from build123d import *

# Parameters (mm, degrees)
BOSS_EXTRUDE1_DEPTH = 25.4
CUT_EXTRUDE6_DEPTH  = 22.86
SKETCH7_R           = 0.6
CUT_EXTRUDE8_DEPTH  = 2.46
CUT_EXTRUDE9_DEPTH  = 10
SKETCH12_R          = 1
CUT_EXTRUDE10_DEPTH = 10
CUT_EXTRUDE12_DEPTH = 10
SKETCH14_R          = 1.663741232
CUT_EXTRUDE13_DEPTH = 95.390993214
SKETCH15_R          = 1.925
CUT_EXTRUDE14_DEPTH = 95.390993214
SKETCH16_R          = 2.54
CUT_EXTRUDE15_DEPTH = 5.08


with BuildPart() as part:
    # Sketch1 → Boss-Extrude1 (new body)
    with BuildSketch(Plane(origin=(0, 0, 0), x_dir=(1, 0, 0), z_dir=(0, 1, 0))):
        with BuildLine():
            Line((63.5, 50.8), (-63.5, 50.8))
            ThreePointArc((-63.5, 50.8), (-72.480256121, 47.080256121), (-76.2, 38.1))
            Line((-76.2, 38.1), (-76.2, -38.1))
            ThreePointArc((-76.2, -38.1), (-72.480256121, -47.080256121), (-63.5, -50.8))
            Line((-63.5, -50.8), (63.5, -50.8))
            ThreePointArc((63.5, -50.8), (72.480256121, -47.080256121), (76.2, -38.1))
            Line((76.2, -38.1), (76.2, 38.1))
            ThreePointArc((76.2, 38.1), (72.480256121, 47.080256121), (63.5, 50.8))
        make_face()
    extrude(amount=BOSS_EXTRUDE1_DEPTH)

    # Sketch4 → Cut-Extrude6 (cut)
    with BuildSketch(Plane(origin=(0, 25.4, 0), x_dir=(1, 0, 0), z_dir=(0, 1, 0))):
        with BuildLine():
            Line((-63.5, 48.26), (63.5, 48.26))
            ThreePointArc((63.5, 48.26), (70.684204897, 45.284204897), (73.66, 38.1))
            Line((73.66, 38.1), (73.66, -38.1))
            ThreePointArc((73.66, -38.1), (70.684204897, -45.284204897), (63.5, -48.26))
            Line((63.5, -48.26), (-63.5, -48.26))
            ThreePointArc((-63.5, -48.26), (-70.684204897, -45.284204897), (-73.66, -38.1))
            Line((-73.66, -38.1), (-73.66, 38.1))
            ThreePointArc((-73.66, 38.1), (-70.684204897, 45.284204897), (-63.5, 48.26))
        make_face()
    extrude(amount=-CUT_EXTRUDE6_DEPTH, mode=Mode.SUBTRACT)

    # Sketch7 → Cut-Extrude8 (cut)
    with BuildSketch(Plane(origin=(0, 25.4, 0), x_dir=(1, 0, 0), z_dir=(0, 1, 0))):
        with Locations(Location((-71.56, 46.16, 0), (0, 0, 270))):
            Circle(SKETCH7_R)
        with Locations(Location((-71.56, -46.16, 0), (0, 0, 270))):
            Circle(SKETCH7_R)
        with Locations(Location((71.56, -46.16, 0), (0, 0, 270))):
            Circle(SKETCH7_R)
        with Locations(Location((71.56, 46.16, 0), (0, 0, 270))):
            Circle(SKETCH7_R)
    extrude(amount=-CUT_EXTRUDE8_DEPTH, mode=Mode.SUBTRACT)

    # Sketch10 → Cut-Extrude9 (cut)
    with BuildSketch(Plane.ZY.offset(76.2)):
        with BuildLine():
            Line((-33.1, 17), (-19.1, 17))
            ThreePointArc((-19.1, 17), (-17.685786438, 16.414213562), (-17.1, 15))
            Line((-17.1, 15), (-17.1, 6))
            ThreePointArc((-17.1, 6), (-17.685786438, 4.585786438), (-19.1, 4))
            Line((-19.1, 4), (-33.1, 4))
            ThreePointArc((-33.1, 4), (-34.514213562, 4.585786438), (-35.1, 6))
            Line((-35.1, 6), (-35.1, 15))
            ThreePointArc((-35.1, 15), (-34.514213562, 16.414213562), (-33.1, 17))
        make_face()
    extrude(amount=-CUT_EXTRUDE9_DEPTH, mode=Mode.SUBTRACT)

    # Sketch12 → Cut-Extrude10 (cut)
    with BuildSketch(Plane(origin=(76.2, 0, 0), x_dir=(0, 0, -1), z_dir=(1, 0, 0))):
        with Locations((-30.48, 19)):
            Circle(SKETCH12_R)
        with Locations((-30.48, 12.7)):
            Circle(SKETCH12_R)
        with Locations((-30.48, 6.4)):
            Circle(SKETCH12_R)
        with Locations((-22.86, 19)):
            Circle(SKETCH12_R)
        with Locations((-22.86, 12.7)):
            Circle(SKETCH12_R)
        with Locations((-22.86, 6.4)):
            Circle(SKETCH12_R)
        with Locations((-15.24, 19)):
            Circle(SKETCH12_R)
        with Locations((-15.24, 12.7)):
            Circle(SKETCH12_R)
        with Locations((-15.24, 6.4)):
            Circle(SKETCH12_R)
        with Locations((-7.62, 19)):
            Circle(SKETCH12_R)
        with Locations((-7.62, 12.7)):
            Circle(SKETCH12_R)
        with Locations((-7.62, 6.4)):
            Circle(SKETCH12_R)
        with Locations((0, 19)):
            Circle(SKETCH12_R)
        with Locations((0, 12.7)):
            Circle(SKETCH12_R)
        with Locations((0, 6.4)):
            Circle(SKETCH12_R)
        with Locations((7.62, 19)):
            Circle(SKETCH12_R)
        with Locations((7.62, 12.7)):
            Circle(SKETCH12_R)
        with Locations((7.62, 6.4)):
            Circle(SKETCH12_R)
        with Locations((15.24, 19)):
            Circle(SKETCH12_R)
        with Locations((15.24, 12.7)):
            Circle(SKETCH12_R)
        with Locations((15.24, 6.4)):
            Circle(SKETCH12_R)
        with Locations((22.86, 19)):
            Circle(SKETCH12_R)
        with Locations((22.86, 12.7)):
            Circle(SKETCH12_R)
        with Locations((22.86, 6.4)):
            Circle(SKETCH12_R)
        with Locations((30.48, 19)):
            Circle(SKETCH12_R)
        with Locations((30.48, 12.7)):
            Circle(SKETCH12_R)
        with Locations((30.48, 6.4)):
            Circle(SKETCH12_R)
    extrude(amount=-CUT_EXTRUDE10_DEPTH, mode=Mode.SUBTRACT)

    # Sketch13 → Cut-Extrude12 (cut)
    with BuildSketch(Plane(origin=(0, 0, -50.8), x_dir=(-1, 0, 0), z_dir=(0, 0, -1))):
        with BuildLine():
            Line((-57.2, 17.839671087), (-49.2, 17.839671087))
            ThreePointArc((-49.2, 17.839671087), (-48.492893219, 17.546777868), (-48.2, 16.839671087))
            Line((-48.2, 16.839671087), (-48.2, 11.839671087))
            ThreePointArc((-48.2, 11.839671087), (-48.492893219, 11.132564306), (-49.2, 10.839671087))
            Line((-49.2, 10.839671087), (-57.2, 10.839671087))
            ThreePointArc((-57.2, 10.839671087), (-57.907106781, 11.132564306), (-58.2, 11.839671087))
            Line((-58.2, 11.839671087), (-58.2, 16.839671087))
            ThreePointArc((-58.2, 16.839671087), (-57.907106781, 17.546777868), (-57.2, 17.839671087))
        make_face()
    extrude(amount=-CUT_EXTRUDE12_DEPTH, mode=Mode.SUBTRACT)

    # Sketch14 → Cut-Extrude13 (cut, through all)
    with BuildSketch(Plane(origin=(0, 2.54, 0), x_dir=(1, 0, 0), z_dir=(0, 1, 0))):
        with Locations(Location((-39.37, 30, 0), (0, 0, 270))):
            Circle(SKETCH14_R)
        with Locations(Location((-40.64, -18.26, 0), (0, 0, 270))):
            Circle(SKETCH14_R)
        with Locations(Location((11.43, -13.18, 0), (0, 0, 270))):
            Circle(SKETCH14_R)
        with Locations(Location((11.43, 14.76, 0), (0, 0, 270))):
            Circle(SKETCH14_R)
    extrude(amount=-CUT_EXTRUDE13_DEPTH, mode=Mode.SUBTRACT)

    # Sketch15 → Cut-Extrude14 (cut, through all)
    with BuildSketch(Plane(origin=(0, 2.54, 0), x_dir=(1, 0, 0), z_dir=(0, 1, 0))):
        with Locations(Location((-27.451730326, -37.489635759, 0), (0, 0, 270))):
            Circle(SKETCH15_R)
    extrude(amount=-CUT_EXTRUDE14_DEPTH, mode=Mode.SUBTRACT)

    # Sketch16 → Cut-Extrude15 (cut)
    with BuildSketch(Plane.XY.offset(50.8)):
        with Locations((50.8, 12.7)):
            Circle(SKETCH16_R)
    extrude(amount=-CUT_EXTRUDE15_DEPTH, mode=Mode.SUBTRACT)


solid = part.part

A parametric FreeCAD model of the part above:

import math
import FreeCAD as App
import Part
import Sketcher
Q = App.Units.Quantity

doc = App.newDocument("Part")
body = doc.addObject("PartDesign::Body", "Body")

# Sketch on XZ plane
sketch1 = body.newObject("Sketcher::SketchObject", "Sketch")
sketch1.AttachmentSupport = (doc.getObject("XZ_Plane"), [""])
sketch1.MapMode = "FlatFace"
sketch1.addGeometry([
    Part.LineSegment(App.Vector(63.5, -50.8, 0), App.Vector(-63.5, -50.8, 0)),  # 0
    Part.ArcOfCircle(Part.Circle(App.Vector(-63.5, -38.1, 0), App.Vector(0, 0, 1), 12.7), math.radians(180), math.radians(270)),  # 1
    Part.LineSegment(App.Vector(-76.2, -38.1, 0), App.Vector(-76.2, 38.1, 0)),  # 2
    Part.ArcOfCircle(Part.Circle(App.Vector(-63.5, 38.1, 0), App.Vector(0, 0, 1), 12.7), math.radians(90), math.radians(180)),  # 3
    Part.LineSegment(App.Vector(-63.5, 50.8, 0), App.Vector(63.5, 50.8, 0)),  # 4
    Part.ArcOfCircle(Part.Circle(App.Vector(63.5, 38.1, 0), App.Vector(0, 0, 1), 12.7), math.radians(0), math.radians(90)),  # 5
    Part.LineSegment(App.Vector(76.2, 38.1, 0), App.Vector(76.2, -38.1, 0)),  # 6
    Part.ArcOfCircle(Part.Circle(App.Vector(63.5, -38.1, 0), App.Vector(0, 0, 1), 12.7), math.radians(-90), math.radians(0)),  # 7
], False)
sketch1.addConstraint([
    Sketcher.Constraint("Tangent", 0, 2, 1, 2),
    Sketcher.Constraint("Tangent", 1, 1, 2, 1),
    Sketcher.Constraint("Tangent", 2, 2, 3, 2),
    Sketcher.Constraint("Tangent", 3, 1, 4, 1),
    Sketcher.Constraint("Tangent", 4, 2, 5, 2),
    Sketcher.Constraint("Tangent", 5, 1, 6, 1),
    Sketcher.Constraint("Tangent", 6, 2, 7, 2),
    Sketcher.Constraint("Tangent", 7, 1, 0, 1),
    Sketcher.Constraint("Horizontal", 0),
    Sketcher.Constraint("Vertical", 2),
    Sketcher.Constraint("Horizontal", 4),
    Sketcher.Constraint("Vertical", 6),
    Sketcher.Constraint("Equal", 1, 3),
    Sketcher.Constraint("Equal", 3, 5),
    Sketcher.Constraint("Equal", 5, 7),
    Sketcher.Constraint("Symmetric", 1, 3, 5, 3, -1, 1),
    Sketcher.Constraint("Radius", 1, Q("12.7 mm")),
    Sketcher.Constraint("DistanceX", 0, 2, 0, 1, Q("127 mm")),
    Sketcher.Constraint("DistanceY", 2, 1, 2, 2, Q("76.2 mm")),
])
pad1 = body.newObject("PartDesign::Pad", "Pad")
pad1.Profile = sketch1
pad1.Length = 25.4
pad1.Reversed = True

# Sketch on XZ plane
sketch2 = body.newObject("Sketcher::SketchObject", "Sketch001")
sketch2.AttachmentSupport = (doc.getObject("XZ_Plane"), [""])
sketch2.MapMode = "FlatFace"
sketch2.AttachmentOffset = App.Placement(App.Vector(0, 0, -25.4), App.Rotation())
sketch2.addGeometry([
    Part.LineSegment(App.Vector(63.5, -48.26, 0), App.Vector(-63.5, -48.26, 0)),  # 0
    Part.ArcOfCircle(Part.Circle(App.Vector(-63.5, -38.1, 0), App.Vector(0, 0, 1), 10.16), math.radians(180), math.radians(270)),  # 1
    Part.LineSegment(App.Vector(-73.66, -38.1, 0), App.Vector(-73.66, 38.1, 0)),  # 2
    Part.ArcOfCircle(Part.Circle(App.Vector(-63.5, 38.1, 0), App.Vector(0, 0, 1), 10.16), math.radians(90), math.radians(180)),  # 3
    Part.LineSegment(App.Vector(-63.5, 48.26, 0), App.Vector(63.5, 48.26, 0)),  # 4
    Part.ArcOfCircle(Part.Circle(App.Vector(63.5, 38.1, 0), App.Vector(0, 0, 1), 10.16), math.radians(0), math.radians(90)),  # 5
    Part.LineSegment(App.Vector(73.66, 38.1, 0), App.Vector(73.66, -38.1, 0)),  # 6
    Part.ArcOfCircle(Part.Circle(App.Vector(63.5, -38.1, 0), App.Vector(0, 0, 1), 10.16), math.radians(-90), math.radians(0)),  # 7
], False)
sketch2.addConstraint([
    Sketcher.Constraint("Tangent", 0, 2, 1, 2),
    Sketcher.Constraint("Tangent", 1, 1, 2, 1),
    Sketcher.Constraint("Tangent", 2, 2, 3, 2),
    Sketcher.Constraint("Tangent", 3, 1, 4, 1),
    Sketcher.Constraint("Tangent", 4, 2, 5, 2),
    Sketcher.Constraint("Tangent", 5, 1, 6, 1),
    Sketcher.Constraint("Tangent", 6, 2, 7, 2),
    Sketcher.Constraint("Tangent", 7, 1, 0, 1),
    Sketcher.Constraint("Horizontal", 0),
    Sketcher.Constraint("Vertical", 2),
    Sketcher.Constraint("Horizontal", 4),
    Sketcher.Constraint("Vertical", 6),
    Sketcher.Constraint("Equal", 1, 3),
    Sketcher.Constraint("Equal", 3, 5),
    Sketcher.Constraint("Equal", 5, 7),
    Sketcher.Constraint("Symmetric", 1, 3, 5, 3, -1, 1),
    Sketcher.Constraint("DistanceX", 0, 2, 0, 1, Q("127 mm")),
    Sketcher.Constraint("Radius", 1, Q("10.16 mm")),
    Sketcher.Constraint("DistanceY", 2, 1, 2, 2, Q("76.2 mm")),
])
pocket1 = body.newObject("PartDesign::Pocket", "Pocket")
pocket1.Profile = sketch2
pocket1.Length = 22.86
pocket1.Reversed = True

# Sketch on XZ plane
sketch3 = body.newObject("Sketcher::SketchObject", "Sketch002")
sketch3.AttachmentSupport = (doc.getObject("XZ_Plane"), [""])
sketch3.MapMode = "FlatFace"
sketch3.AttachmentOffset = App.Placement(App.Vector(0, 0, -25.4), App.Rotation())
sketch3.addGeometry([
    Part.Circle(App.Vector(-71.56, -46.16, 0), App.Vector(0, 0, 1), 0.6),
    Part.Circle(App.Vector(-71.56, 46.16, 0), App.Vector(0, 0, 1), 0.6),
    Part.Circle(App.Vector(71.56, 46.16, 0), App.Vector(0, 0, 1), 0.6),
    Part.Circle(App.Vector(71.56, -46.16, 0), App.Vector(0, 0, 1), 0.6),
], False)
sketch3.addConstraint([
    Sketcher.Constraint("Equal", 0, 1),
    Sketcher.Constraint("Equal", 1, 2),
    Sketcher.Constraint("Equal", 2, 3),
    Sketcher.Constraint("Symmetric", 0, 3, 2, 3, -1, 1),
    Sketcher.Constraint("Symmetric", 1, 3, 3, 3, -1, 1),
    Sketcher.Constraint("Symmetric", 1, 3, 2, 3, -2),
    Sketcher.Constraint("Diameter", 0, Q("1.2 mm")),
    Sketcher.Constraint("DistanceX", 0, 3, -1, 1, Q("71.56 mm")),
    Sketcher.Constraint("DistanceY", 0, 3, -1, 1, Q("46.16 mm")),
])
pocket2 = body.newObject("PartDesign::Pocket", "Pocket001")
pocket2.Profile = sketch3
pocket2.Length = 2.46
pocket2.Reversed = True

# Sketch on YZ plane
sketch4 = body.newObject("Sketcher::SketchObject", "Sketch003")
sketch4.AttachmentSupport = (doc.getObject("YZ_Plane"), [""])
sketch4.MapMode = "FlatFace"
sketch4.AttachmentOffset = App.Placement(App.Vector(0, 0, -76.2), App.Rotation())
sketch4.addGeometry([
    Part.LineSegment(App.Vector(17, -19.1, 0), App.Vector(17, -33.1, 0)),  # 0
    Part.ArcOfCircle(Part.Circle(App.Vector(15, -33.1, 0), App.Vector(0, 0, 1), 2), math.radians(-90), math.radians(0)),  # 1
    Part.LineSegment(App.Vector(15, -35.1, 0), App.Vector(6, -35.1, 0)),  # 2
    Part.ArcOfCircle(Part.Circle(App.Vector(6, -33.1, 0), App.Vector(0, 0, 1), 2), math.radians(-180), math.radians(-90)),  # 3
    Part.LineSegment(App.Vector(4, -33.1, 0), App.Vector(4, -19.1, 0)),  # 4
    Part.ArcOfCircle(Part.Circle(App.Vector(6, -19.1, 0), App.Vector(0, 0, 1), 2), math.radians(90), math.radians(180)),  # 5
    Part.LineSegment(App.Vector(6, -17.1, 0), App.Vector(15, -17.1, 0)),  # 6
    Part.ArcOfCircle(Part.Circle(App.Vector(15, -19.1, 0), App.Vector(0, 0, 1), 2), math.radians(0), math.radians(90)),  # 7
], False)
sketch4.addConstraint([
    Sketcher.Constraint("Tangent", 0, 2, 1, 2),
    Sketcher.Constraint("Tangent", 1, 1, 2, 1),
    Sketcher.Constraint("Tangent", 2, 2, 3, 2),
    Sketcher.Constraint("Tangent", 3, 1, 4, 1),
    Sketcher.Constraint("Tangent", 4, 2, 5, 2),
    Sketcher.Constraint("Tangent", 5, 1, 6, 1),
    Sketcher.Constraint("Tangent", 6, 2, 7, 2),
    Sketcher.Constraint("Tangent", 7, 1, 0, 1),
    Sketcher.Constraint("Vertical", 0),
    Sketcher.Constraint("Horizontal", 2),
    Sketcher.Constraint("Vertical", 4),
    Sketcher.Constraint("Horizontal", 6),
    Sketcher.Constraint("Equal", 1, 3),
    Sketcher.Constraint("Equal", 3, 5),
    Sketcher.Constraint("Equal", 5, 7),
    Sketcher.Constraint("Radius", 1, Q("2 mm")),
    Sketcher.Constraint("DistanceX", 2, 2, 2, 1, Q("9 mm")),
    Sketcher.Constraint("DistanceY", 0, 2, 0, 1, Q("14 mm")),
    Sketcher.Constraint("DistanceX", -1, 1, 1, 3, Q("15 mm")),
    Sketcher.Constraint("DistanceY", 1, 3, -1, 1, Q("33.1 mm")),
])
pocket3 = body.newObject("PartDesign::Pocket", "Pocket002")
pocket3.Profile = sketch4
pocket3.Length = 10
pocket3.Reversed = True

# Sketch on YZ plane
sketch5 = body.newObject("Sketcher::SketchObject", "Sketch004")
sketch5.AttachmentSupport = (doc.getObject("YZ_Plane"), [""])
sketch5.MapMode = "FlatFace"
sketch5.AttachmentOffset = App.Placement(App.Vector(0, 0, 76.2), App.Rotation())
sketch5.addGeometry([
    Part.Circle(App.Vector(19, 30.48, 0), App.Vector(0, 0, 1), 1),  # 0
    Part.Circle(App.Vector(12.7, 30.48, 0), App.Vector(0, 0, 1), 1),  # 1
    Part.Circle(App.Vector(6.4, 30.48, 0), App.Vector(0, 0, 1), 1),  # 2
    Part.Circle(App.Vector(19, 22.86, 0), App.Vector(0, 0, 1), 1),  # 3
    Part.Circle(App.Vector(12.7, 22.86, 0), App.Vector(0, 0, 1), 1),  # 4
    Part.Circle(App.Vector(6.4, 22.86, 0), App.Vector(0, 0, 1), 1),  # 5
    Part.Circle(App.Vector(19, 15.24, 0), App.Vector(0, 0, 1), 1),  # 6
    Part.Circle(App.Vector(12.7, 15.24, 0), App.Vector(0, 0, 1), 1),  # 7
    Part.Circle(App.Vector(6.4, 15.24, 0), App.Vector(0, 0, 1), 1),  # 8
    Part.Circle(App.Vector(19, 7.62, 0), App.Vector(0, 0, 1), 1),  # 9
    Part.Circle(App.Vector(12.7, 7.62, 0), App.Vector(0, 0, 1), 1),  # 10
    Part.Circle(App.Vector(6.4, 7.62, 0), App.Vector(0, 0, 1), 1),  # 11
    Part.Circle(App.Vector(19, 0, 0), App.Vector(0, 0, 1), 1),  # 12
    Part.Circle(App.Vector(12.7, 0, 0), App.Vector(0, 0, 1), 1),  # 13
    Part.Circle(App.Vector(6.4, 0, 0), App.Vector(0, 0, 1), 1),  # 14
    Part.Circle(App.Vector(19, -7.62, 0), App.Vector(0, 0, 1), 1),  # 15
    Part.Circle(App.Vector(12.7, -7.62, 0), App.Vector(0, 0, 1), 1),  # 16
    Part.Circle(App.Vector(6.4, -7.62, 0), App.Vector(0, 0, 1), 1),  # 17
    Part.Circle(App.Vector(19, -15.24, 0), App.Vector(0, 0, 1), 1),  # 18
    Part.Circle(App.Vector(12.7, -15.24, 0), App.Vector(0, 0, 1), 1),  # 19
    Part.Circle(App.Vector(6.4, -15.24, 0), App.Vector(0, 0, 1), 1),  # 20
    Part.Circle(App.Vector(19, -22.86, 0), App.Vector(0, 0, 1), 1),  # 21
    Part.Circle(App.Vector(12.7, -22.86, 0), App.Vector(0, 0, 1), 1),  # 22
    Part.Circle(App.Vector(6.4, -22.86, 0), App.Vector(0, 0, 1), 1),  # 23
    Part.Circle(App.Vector(19, -30.48, 0), App.Vector(0, 0, 1), 1),  # 24
    Part.Circle(App.Vector(12.7, -30.48, 0), App.Vector(0, 0, 1), 1),  # 25
    Part.Circle(App.Vector(6.4, -30.48, 0), App.Vector(0, 0, 1), 1),  # 26
], False)
sketch5.addConstraint([
    Sketcher.Constraint("Equal", 0, 1),
    Sketcher.Constraint("Equal", 1, 2),
    Sketcher.Constraint("Equal", 2, 3),
    Sketcher.Constraint("Equal", 3, 4),
    Sketcher.Constraint("Equal", 4, 5),
    Sketcher.Constraint("Equal", 5, 6),
    Sketcher.Constraint("Equal", 6, 7),
    Sketcher.Constraint("Equal", 7, 8),
    Sketcher.Constraint("Equal", 8, 9),
    Sketcher.Constraint("Equal", 9, 10),
    Sketcher.Constraint("Equal", 10, 11),
    Sketcher.Constraint("Equal", 11, 12),
    Sketcher.Constraint("Equal", 12, 13),
    Sketcher.Constraint("Equal", 13, 14),
    Sketcher.Constraint("Equal", 14, 15),
    Sketcher.Constraint("Equal", 15, 16),
    Sketcher.Constraint("Equal", 16, 17),
    Sketcher.Constraint("Equal", 17, 18),
    Sketcher.Constraint("Equal", 18, 19),
    Sketcher.Constraint("Equal", 19, 20),
    Sketcher.Constraint("Equal", 20, 21),
    Sketcher.Constraint("Equal", 21, 22),
    Sketcher.Constraint("Equal", 22, 23),
    Sketcher.Constraint("Equal", 23, 24),
    Sketcher.Constraint("Equal", 24, 25),
    Sketcher.Constraint("Equal", 25, 26),
    Sketcher.Constraint("Symmetric", 9, 3, 15, 3, -1),
    Sketcher.Constraint("Symmetric", 10, 3, 16, 3, -1),
    Sketcher.Constraint("Symmetric", 11, 3, 17, 3, -1),
    Sketcher.Constraint("Symmetric", 6, 3, 18, 3, -1),
    Sketcher.Constraint("Symmetric", 7, 3, 19, 3, -1),
    Sketcher.Constraint("Symmetric", 8, 3, 20, 3, -1),
    Sketcher.Constraint("Symmetric", 3, 3, 21, 3, -1),
    Sketcher.Constraint("Symmetric", 4, 3, 22, 3, -1),
    Sketcher.Constraint("Symmetric", 5, 3, 23, 3, -1),
    Sketcher.Constraint("Symmetric", 0, 3, 24, 3, -1),
    Sketcher.Constraint("Symmetric", 1, 3, 25, 3, -1),
    Sketcher.Constraint("Symmetric", 2, 3, 26, 3, -1),
    Sketcher.Constraint("PointOnObject", 12, 3, -1),
    Sketcher.Constraint("PointOnObject", 13, 3, -1),
    Sketcher.Constraint("PointOnObject", 14, 3, -1),
    Sketcher.Constraint("Horizontal", 0, 3, 1, 3),
    Sketcher.Constraint("Horizontal", 1, 3, 2, 3),
    Sketcher.Constraint("Horizontal", 3, 3, 4, 3),
    Sketcher.Constraint("Horizontal", 4, 3, 5, 3),
    Sketcher.Constraint("Horizontal", 6, 3, 7, 3),
    Sketcher.Constraint("Horizontal", 7, 3, 8, 3),
    Sketcher.Constraint("Horizontal", 9, 3, 10, 3),
    Sketcher.Constraint("Horizontal", 10, 3, 11, 3),
    Sketcher.Constraint("Vertical", 0, 3, 3, 3),
    Sketcher.Constraint("Vertical", 1, 3, 4, 3),
    Sketcher.Constraint("Vertical", 2, 3, 5, 3),
    Sketcher.Constraint("Vertical", 3, 3, 6, 3),
    Sketcher.Constraint("Vertical", 4, 3, 7, 3),
    Sketcher.Constraint("Vertical", 5, 3, 8, 3),
    Sketcher.Constraint("Vertical", 6, 3, 9, 3),
    Sketcher.Constraint("Vertical", 7, 3, 10, 3),
    Sketcher.Constraint("Vertical", 8, 3, 11, 3),
    Sketcher.Constraint("Vertical", 9, 3, 12, 3),
    Sketcher.Constraint("Vertical", 10, 3, 13, 3),
    Sketcher.Constraint("Vertical", 11, 3, 14, 3),
    Sketcher.Constraint("Diameter", 0, Q("2 mm")),
    Sketcher.Constraint("DistanceX", -1, 1, 0, 3, Q("19 mm")),
    Sketcher.Constraint("DistanceX", -1, 1, 1, 3, Q("12.7 mm")),
    Sketcher.Constraint("DistanceX", -1, 1, 2, 3, Q("6.4 mm")),
    Sketcher.Constraint("DistanceY", -1, 1, 0, 3, Q("30.48 mm")),
    Sketcher.Constraint("DistanceY", -1, 1, 3, 3, Q("22.86 mm")),
    Sketcher.Constraint("DistanceY", -1, 1, 6, 3, Q("15.24 mm")),
    Sketcher.Constraint("DistanceY", -1, 1, 9, 3, Q("7.62 mm")),
])
pocket4 = body.newObject("PartDesign::Pocket", "Pocket003")
pocket4.Profile = sketch5
pocket4.Length = 10

# Sketch on XY plane
sketch6 = body.newObject("Sketcher::SketchObject", "Sketch005")
sketch6.AttachmentSupport = (doc.getObject("XY_Plane"), [""])
sketch6.MapMode = "FlatFace"
sketch6.AttachmentOffset = App.Placement(App.Vector(0, 0, -50.8), App.Rotation())
sketch6.addGeometry([
    Part.LineSegment(App.Vector(49.2, 17.839671, 0), App.Vector(57.2, 17.839671, 0)),  # 0
    Part.ArcOfCircle(Part.Circle(App.Vector(57.2, 16.839671, 0), App.Vector(0, 0, 1), 1), math.radians(0), math.radians(90)),  # 1
    Part.LineSegment(App.Vector(58.2, 16.839671, 0), App.Vector(58.2, 11.839671, 0)),  # 2
    Part.ArcOfCircle(Part.Circle(App.Vector(57.2, 11.839671, 0), App.Vector(0, 0, 1), 1), math.radians(-90), math.radians(0)),  # 3
    Part.LineSegment(App.Vector(57.2, 10.839671, 0), App.Vector(49.2, 10.839671, 0)),  # 4
    Part.ArcOfCircle(Part.Circle(App.Vector(49.2, 11.839671, 0), App.Vector(0, 0, 1), 1), math.radians(-180), math.radians(-90)),  # 5
    Part.LineSegment(App.Vector(48.2, 11.839671, 0), App.Vector(48.2, 16.839671, 0)),  # 6
    Part.ArcOfCircle(Part.Circle(App.Vector(49.2, 16.839671, 0), App.Vector(0, 0, 1), 1), math.radians(90), math.radians(180)),  # 7
], False)
sketch6.addConstraint([
    Sketcher.Constraint("Tangent", 0, 2, 1, 2),
    Sketcher.Constraint("Tangent", 1, 1, 2, 1),
    Sketcher.Constraint("Tangent", 2, 2, 3, 2),
    Sketcher.Constraint("Tangent", 3, 1, 4, 1),
    Sketcher.Constraint("Tangent", 4, 2, 5, 2),
    Sketcher.Constraint("Tangent", 5, 1, 6, 1),
    Sketcher.Constraint("Tangent", 6, 2, 7, 2),
    Sketcher.Constraint("Tangent", 7, 1, 0, 1),
    Sketcher.Constraint("Horizontal", 0),
    Sketcher.Constraint("Vertical", 2),
    Sketcher.Constraint("Horizontal", 4),
    Sketcher.Constraint("Vertical", 6),
    Sketcher.Constraint("Equal", 1, 3),
    Sketcher.Constraint("Equal", 3, 5),
    Sketcher.Constraint("Equal", 5, 7),
    Sketcher.Constraint("Radius", 1, Q("1 mm")),
    Sketcher.Constraint("DistanceX", 0, 1, 0, 2, Q("8 mm")),
    Sketcher.Constraint("DistanceY", 2, 2, 2, 1, Q("5 mm")),
    Sketcher.Constraint("DistanceX", -1, 1, 1, 3, Q("57.2 mm")),
    Sketcher.Constraint("DistanceY", -1, 1, 1, 3, Q("16.839671 mm")),
])
pocket5 = body.newObject("PartDesign::Pocket", "Pocket004")
pocket5.Profile = sketch6
pocket5.Length = 10
pocket5.Reversed = True

# Sketch on XZ plane
sketch7 = body.newObject("Sketcher::SketchObject", "Sketch006")
sketch7.AttachmentSupport = (doc.getObject("XZ_Plane"), [""])
sketch7.MapMode = "FlatFace"
sketch7.AttachmentOffset = App.Placement(App.Vector(0, 0, -2.54), App.Rotation())
sketch7.addGeometry([
    Part.Circle(App.Vector(-39.37, -30, 0), App.Vector(0, 0, 1), 1.663741),
    Part.Circle(App.Vector(-40.64, 18.26, 0), App.Vector(0, 0, 1), 1.663741),
    Part.Circle(App.Vector(11.43, 13.18, 0), App.Vector(0, 0, 1), 1.663741),
    Part.Circle(App.Vector(11.43, -14.76, 0), App.Vector(0, 0, 1), 1.663741),
], False)
sketch7.addConstraint([
    Sketcher.Constraint("Equal", 0, 1),
    Sketcher.Constraint("Equal", 1, 2),
    Sketcher.Constraint("Equal", 2, 3),
    Sketcher.Constraint("Vertical", 2, 3, 3, 3),
    Sketcher.Constraint("DistanceY", 0, 3, -1, 1, Q("30 mm")),
    Sketcher.Constraint("DistanceX", 0, 3, 2, 3, Q("50.8 mm")),
    Sketcher.Constraint("DistanceX", 0, 3, -1, 1, Q("39.37 mm")),
    Sketcher.Constraint("DistanceX", 1, 3, -1, 1, Q("40.64 mm")),
    Sketcher.Constraint("DistanceY", -1, 1, 1, 3, Q("18.26 mm")),
    Sketcher.Constraint("DistanceY", -1, 1, 2, 3, Q("13.18 mm")),
    Sketcher.Constraint("DistanceY", 3, 3, -1, 1, Q("14.76 mm")),
    Sketcher.Constraint("Diameter", 0, Q("3.327482 mm")),
])
pocket6 = body.newObject("PartDesign::Pocket", "Pocket005")
pocket6.Profile = sketch7
pocket6.Type = "ThroughAll"
pocket6.Reversed = True

# Sketch on XZ plane
sketch8 = body.newObject("Sketcher::SketchObject", "Sketch007")
sketch8.AttachmentSupport = (doc.getObject("XZ_Plane"), [""])
sketch8.MapMode = "FlatFace"
sketch8.AttachmentOffset = App.Placement(App.Vector(0, 0, -2.54), App.Rotation())
sketch8.addGeometry(Part.Circle(App.Vector(-27.45173, 37.489636, 0), App.Vector(0, 0, 1), 1.925), False)
sketch8.addConstraint([
    Sketcher.Constraint("Diameter", 0, Q("3.85 mm")),
    Sketcher.Constraint("DistanceX", 0, 3, -1, 1, Q("27.45173 mm")),
    Sketcher.Constraint("DistanceY", -1, 1, 0, 3, Q("37.489636 mm")),
])
pocket7 = body.newObject("PartDesign::Pocket", "Pocket006")
pocket7.Profile = sketch8
pocket7.Type = "ThroughAll"
pocket7.Reversed = True

# Sketch on XY plane
sketch9 = body.newObject("Sketcher::SketchObject", "Sketch008")
sketch9.AttachmentSupport = (doc.getObject("XY_Plane"), [""])
sketch9.MapMode = "FlatFace"
sketch9.AttachmentOffset = App.Placement(App.Vector(0, 0, 50.8), App.Rotation())
sketch9.addGeometry(Part.Circle(App.Vector(50.8, 12.7, 0), App.Vector(0, 0, 1), 2.54), False)
sketch9.addConstraint([
    Sketcher.Constraint("Diameter", 0, Q("5.08 mm")),
    Sketcher.Constraint("DistanceX", -1, 1, 0, 3, Q("50.8 mm")),
    Sketcher.Constraint("DistanceY", -1, 1, 0, 3, Q("12.7 mm")),
])
pocket8 = body.newObject("PartDesign::Pocket", "Pocket007")
pocket8.Profile = sketch9
pocket8.Length = 5.08

doc.recompute()
